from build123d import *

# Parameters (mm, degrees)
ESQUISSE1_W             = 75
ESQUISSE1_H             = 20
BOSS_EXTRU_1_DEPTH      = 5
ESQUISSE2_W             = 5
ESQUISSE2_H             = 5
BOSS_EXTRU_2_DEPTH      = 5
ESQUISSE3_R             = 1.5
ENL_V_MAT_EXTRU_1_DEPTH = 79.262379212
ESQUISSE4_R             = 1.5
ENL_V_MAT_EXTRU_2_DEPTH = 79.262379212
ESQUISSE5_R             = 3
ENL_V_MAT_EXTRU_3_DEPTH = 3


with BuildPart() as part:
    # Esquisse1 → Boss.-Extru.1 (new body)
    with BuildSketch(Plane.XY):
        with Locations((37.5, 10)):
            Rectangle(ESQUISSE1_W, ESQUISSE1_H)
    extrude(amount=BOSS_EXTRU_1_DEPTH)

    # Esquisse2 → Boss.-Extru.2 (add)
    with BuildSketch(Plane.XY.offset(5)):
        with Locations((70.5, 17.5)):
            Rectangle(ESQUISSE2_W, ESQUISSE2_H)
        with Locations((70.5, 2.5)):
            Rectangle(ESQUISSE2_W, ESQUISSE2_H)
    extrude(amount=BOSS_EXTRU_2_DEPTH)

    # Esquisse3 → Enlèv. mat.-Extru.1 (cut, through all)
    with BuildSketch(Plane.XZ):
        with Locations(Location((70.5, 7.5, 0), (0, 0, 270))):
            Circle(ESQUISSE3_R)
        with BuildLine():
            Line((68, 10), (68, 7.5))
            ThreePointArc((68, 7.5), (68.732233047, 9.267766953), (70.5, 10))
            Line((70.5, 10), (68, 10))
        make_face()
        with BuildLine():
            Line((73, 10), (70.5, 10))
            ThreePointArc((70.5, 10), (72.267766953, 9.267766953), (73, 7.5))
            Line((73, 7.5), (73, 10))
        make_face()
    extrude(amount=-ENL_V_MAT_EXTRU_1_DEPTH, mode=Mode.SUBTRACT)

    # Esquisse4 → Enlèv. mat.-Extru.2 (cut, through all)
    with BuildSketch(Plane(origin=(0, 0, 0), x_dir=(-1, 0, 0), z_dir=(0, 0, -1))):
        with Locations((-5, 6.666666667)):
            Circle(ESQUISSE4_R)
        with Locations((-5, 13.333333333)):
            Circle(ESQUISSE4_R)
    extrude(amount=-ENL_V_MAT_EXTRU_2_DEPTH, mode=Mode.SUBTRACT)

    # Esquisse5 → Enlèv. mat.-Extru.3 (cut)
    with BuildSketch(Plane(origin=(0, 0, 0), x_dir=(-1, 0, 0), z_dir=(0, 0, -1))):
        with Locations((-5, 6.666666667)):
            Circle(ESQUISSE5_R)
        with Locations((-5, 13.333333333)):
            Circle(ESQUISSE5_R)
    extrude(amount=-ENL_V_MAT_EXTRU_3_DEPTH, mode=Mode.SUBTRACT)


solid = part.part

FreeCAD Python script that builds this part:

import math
import FreeCAD as App
import Part
import Sketcher

V = App.Vector

doc = App.newDocument("Part")
body = doc.addObject("PartDesign::Body", "Body")

# Sketch on XY plane
sketch1 = body.newObject("Sketcher::SketchObject", "Sketch")
sketch1.AttachmentSupport = (doc.getObject("XY_Plane"), [""])
sketch1.MapMode = "FlatFace"
sketch1.addGeometry(Part.LineSegment(V(0, 20, 0), V(0, 0, 0)), False)
sketch1.addGeometry(Part.LineSegment(V(0, 0, 0), V(75, 0, 0)), False)
sketch1.addGeometry(Part.LineSegment(V(75, 0, 0), V(75, 20, 0)), False)
sketch1.addGeometry(Part.LineSegment(V(75, 20, 0), V(0, 20, 0)), False)
sketch1.addConstraint(Sketcher.Constraint("Coincident", 0, 2, 1, 1))
sketch1.addConstraint(Sketcher.Constraint("Coincident", 1, 2, 2, 1))
sketch1.addConstraint(Sketcher.Constraint("Coincident", 2, 2, 3, 1))
sketch1.addConstraint(Sketcher.Constraint("Coincident", 3, 2, 0, 1))
sketch1.addConstraint(Sketcher.Constraint("Vertical", 0))
sketch1.addConstraint(Sketcher.Constraint("Horizontal", 1))
sketch1.addConstraint(Sketcher.Constraint("Vertical", 2))
sketch1.addConstraint(Sketcher.Constraint("Horizontal", 3))
sketch1.addConstraint(Sketcher.Constraint("Coincident", 0, 2, -1, 1))
sketch1.addConstraint(Sketcher.Constraint("DistanceX", 1, 1, 1, 2, 75.0))
sketch1.addConstraint(Sketcher.Constraint("DistanceY", 0, 2, 0, 1, 20.0))
pad1 = body.newObject("PartDesign::Pad", "Pad")
pad1.Profile = sketch1
pad1.Length = 5

# Sketch on XY plane
sketch2 = body.newObject("Sketcher::SketchObject", "Sketch001")
sketch2.AttachmentSupport = (doc.getObject("XY_Plane"), [""])
sketch2.MapMode = "FlatFace"
sketch2.AttachmentOffset = App.Placement(V(0, 0, 5), App.Rotation())
sketch2.addGeometry(Part.LineSegment(V(68, 20, 0), V(68, 15, 0)), False)
sketch2.addGeometry(Part.LineSegment(V(68, 15, 0), V(73, 15, 0)), False)
sketch2.addGeometry(Part.LineSegment(V(73, 15, 0), V(73, 20, 0)), False)
sketch2.addGeometry(Part.LineSegment(V(73, 20, 0), V(68, 20, 0)), False)
sketch2.addGeometry(Part.LineSegment(V(68, 5, 0), V(68, 0, 0)), False)
sketch2.addGeometry(Part.LineSegment(V(68, 0, 0), V(73, 0, 0)), False)
sketch2.addGeometry(Part.LineSegment(V(73, 0, 0), V(73, 5, 0)), False)
sketch2.addGeometry(Part.LineSegment(V(73, 5, 0), V(68, 5, 0)), False)
sketch2.addConstraint(Sketcher.Constraint("Coincident", 0, 2, 1, 1))
sketch2.addConstraint(Sketcher.Constraint("Coincident", 1, 2, 2, 1))
sketch2.addConstraint(Sketcher.Constraint("Coincident", 2, 2, 3, 1))
sketch2.addConstraint(Sketcher.Constraint("Coincident", 3, 2, 0, 1))
sketch2.addConstraint(Sketcher.Constraint("Coincident", 4, 2, 5, 1))
sketch2.addConstraint(Sketcher.Constraint("Coincident", 5, 2, 6, 1))
sketch2.addConstraint(Sketcher.Constraint("Coincident", 6, 2, 7, 1))
sketch2.addConstraint(Sketcher.Constraint("Coincident", 7, 2, 4, 1))
sketch2.addConstraint(Sketcher.Constraint("Vertical", 0))
sketch2.addConstraint(Sketcher.Constraint("Horizontal", 1))
sketch2.addConstraint(Sketcher.Constraint("Vertical", 2))
sketch2.addConstraint(Sketcher.Constraint("Horizontal", 3))
sketch2.addConstraint(Sketcher.Constraint("Vertical", 4))
sketch2.addConstraint(Sketcher.Constraint("Horizontal", 5))
sketch2.addConstraint(Sketcher.Constraint("Vertical", 6))
sketch2.addConstraint(Sketcher.Constraint("Horizontal", 7))
sketch2.addConstraint(Sketcher.Constraint("PointOnObject", 4, 2, -1))
sketch2.addConstraint(Sketcher.Constraint("Vertical", 3, 2, 4, 2))
sketch2.addConstraint(Sketcher.Constraint("Vertical", 2, 2, 5, 2))
sketch2.addConstraint(Sketcher.Constraint("Equal", 7, 0))
sketch2.addConstraint(Sketcher.Constraint("Equal", 2, 4))
sketch2.addConstraint(Sketcher.Constraint("DistanceX", 1, 1, 1, 2, 5.0))
sketch2.addConstraint(Sketcher.Constraint("DistanceX", -1, 1, 0, 2, 68.0))
sketch2.addConstraint(Sketcher.Constraint("DistanceY", -1, 1, 0, 2, 15.0))
pad2 = body.newObject("PartDesign::Pad", "Pad001")
pad2.Profile = sketch2
pad2.Length = 5

# Sketch on XZ plane
sketch3 = body.newObject("Sketcher::SketchObject", "Sketch002")
sketch3.AttachmentSupport = (doc.getObject("XZ_Plane"), [""])
sketch3.MapMode = "FlatFace"
sketch3.addGeometry(Part.Circle(V(70.5, 7.5, 0), V(0, 0, 1), 1.5), False)
sketch3.addGeometry(Part.LineSegment(V(68, 10, 0), V(68, 7.5, 0)), False)
sketch3.addGeometry(Part.ArcOfCircle(Part.Circle(V(70.5, 7.5, 0), V(0, 0, 1), 2.5), math.radians(90), math.radians(180)), False)
sketch3.addGeometry(Part.LineSegment(V(70.5, 10, 0), V(68, 10, 0)), False)
sketch3.addGeometry(Part.LineSegment(V(73, 10, 0), V(70.5, 10, 0)), False)
sketch3.addGeometry(Part.ArcOfCircle(Part.Circle(V(70.5, 7.5, 0), V(0, 0, 1), 2.5), math.radians(0), math.radians(90)), False)
sketch3.addGeometry(Part.LineSegment(V(73, 7.5, 0), V(73, 10, 0)), False)
sketch3.addConstraint(Sketcher.Constraint("Tangent", 1, 2, 2, 2))
sketch3.addConstraint(Sketcher.Constraint("Tangent", 2, 1, 3, 1))
sketch3.addConstraint(Sketcher.Constraint("Coincident", 3, 2, 1, 1))
sketch3.addConstraint(Sketcher.Constraint("Tangent", 4, 2, 5, 2))
sketch3.addConstraint(Sketcher.Constraint("Tangent", 5, 1, 6, 1))
sketch3.addConstraint(Sketcher.Constraint("Coincident", 6, 2, 4, 1))
sketch3.addConstraint(Sketcher.Constraint("Vertical", 1))
sketch3.addConstraint(Sketcher.Constraint("Horizontal", 3))
sketch3.addConstraint(Sketcher.Constraint("Horizontal", 4))
sketch3.addConstraint(Sketcher.Constraint("Vertical", 6))
sketch3.addConstraint(Sketcher.Constraint("Coincident", 2, 3, 0, 3))
sketch3.addConstraint(Sketcher.Constraint("Coincident", 5, 3, 0, 3))
sketch3.addConstraint(Sketcher.Constraint("Equal", 2, 5))
sketch3.addConstraint(Sketcher.Constraint("Diameter", 0, 3.0))
sketch3.addConstraint(Sketcher.Constraint("Radius", 2, 2.5))
sketch3.addConstraint(Sketcher.Constraint("DistanceX", -1, 1, 1, 2, 68.0))
sketch3.addConstraint(Sketcher.Constraint("DistanceY", -1, 1, 2, 1, 10.0))
pocket1 = body.newObject("PartDesign::Pocket", "Pocket")
pocket1.Profile = sketch3
pocket1.Type = "ThroughAll"

# Sketch on XY plane
sketch4 = body.newObject("Sketcher::SketchObject", "Sketch003")
sketch4.AttachmentSupport = (doc.getObject("XY_Plane"), [""])
sketch4.MapMode = "FlatFace"
sketch4.addGeometry(Part.Circle(V(5, 6.7, 0), V(0, 0, 1), 1.5), False)
sketch4.addGeometry(Part.Circle(V(5, 13.3, 0), V(0, 0, 1), 1.5), False)
sketch4.addConstraint(Sketcher.Constraint("Equal", 0, 1))
sketch4.addConstraint(Sketcher.Constraint("Vertical", 0, 3, 1, 3))
sketch4.addConstraint(Sketcher.Constraint("Diameter", 0, 3.0))
sketch4.addConstraint(Sketcher.Constraint("DistanceX", -1, 1, 0, 3, 5.0))
sketch4.addConstraint(Sketcher.Constraint("DistanceY", -1, 1, 0, 3, 6.666667))
sketch4.addConstraint(Sketcher.Constraint("DistanceY", -1, 1, 1, 3, 13.333333))
pocket2 = body.newObject("PartDesign::Pocket", "Pocket001")
pocket2.Profile = sketch4
pocket2.Type = "ThroughAll"
pocket2.Reversed = True

# Sketch on XY plane
sketch5 = body.newObject("Sketcher::SketchObject", "Sketch004")
sketch5.AttachmentSupport = (doc.getObject("XY_Plane"), [""])
sketch5.MapMode = "FlatFace"
sketch5.addGeometry(Part.Circle(V(5, 6.7, 0), V(0, 0, 1), 3), False)
sketch5.addGeometry(Part.Circle(V(5, 13.3, 0), V(0, 0, 1), 3), False)
sketch5.addConstraint(Sketcher.Constraint("Equal", 0, 1))
sketch5.addConstraint(Sketcher.Constraint("Vertical", 0, 3, 1, 3))
sketch5.addConstraint(Sketcher.Constraint("Diameter", 0, 6.0))
sketch5.addConstraint(Sketcher.Constraint("DistanceX", -1, 1, 0, 3, 5.0))
sketch5.addConstraint(Sketcher.Constraint("DistanceY", -1, 1, 0, 3, 6.666667))
sketch5.addConstraint(Sketcher.Constraint("DistanceY", -1, 1, 1, 3, 13.333333))
pocket3 = body.newObject("PartDesign::Pocket", "Pocket002")
pocket3.Profile = sketch5
pocket3.Length = 3
pocket3.Reversed = True

doc.recompute()
